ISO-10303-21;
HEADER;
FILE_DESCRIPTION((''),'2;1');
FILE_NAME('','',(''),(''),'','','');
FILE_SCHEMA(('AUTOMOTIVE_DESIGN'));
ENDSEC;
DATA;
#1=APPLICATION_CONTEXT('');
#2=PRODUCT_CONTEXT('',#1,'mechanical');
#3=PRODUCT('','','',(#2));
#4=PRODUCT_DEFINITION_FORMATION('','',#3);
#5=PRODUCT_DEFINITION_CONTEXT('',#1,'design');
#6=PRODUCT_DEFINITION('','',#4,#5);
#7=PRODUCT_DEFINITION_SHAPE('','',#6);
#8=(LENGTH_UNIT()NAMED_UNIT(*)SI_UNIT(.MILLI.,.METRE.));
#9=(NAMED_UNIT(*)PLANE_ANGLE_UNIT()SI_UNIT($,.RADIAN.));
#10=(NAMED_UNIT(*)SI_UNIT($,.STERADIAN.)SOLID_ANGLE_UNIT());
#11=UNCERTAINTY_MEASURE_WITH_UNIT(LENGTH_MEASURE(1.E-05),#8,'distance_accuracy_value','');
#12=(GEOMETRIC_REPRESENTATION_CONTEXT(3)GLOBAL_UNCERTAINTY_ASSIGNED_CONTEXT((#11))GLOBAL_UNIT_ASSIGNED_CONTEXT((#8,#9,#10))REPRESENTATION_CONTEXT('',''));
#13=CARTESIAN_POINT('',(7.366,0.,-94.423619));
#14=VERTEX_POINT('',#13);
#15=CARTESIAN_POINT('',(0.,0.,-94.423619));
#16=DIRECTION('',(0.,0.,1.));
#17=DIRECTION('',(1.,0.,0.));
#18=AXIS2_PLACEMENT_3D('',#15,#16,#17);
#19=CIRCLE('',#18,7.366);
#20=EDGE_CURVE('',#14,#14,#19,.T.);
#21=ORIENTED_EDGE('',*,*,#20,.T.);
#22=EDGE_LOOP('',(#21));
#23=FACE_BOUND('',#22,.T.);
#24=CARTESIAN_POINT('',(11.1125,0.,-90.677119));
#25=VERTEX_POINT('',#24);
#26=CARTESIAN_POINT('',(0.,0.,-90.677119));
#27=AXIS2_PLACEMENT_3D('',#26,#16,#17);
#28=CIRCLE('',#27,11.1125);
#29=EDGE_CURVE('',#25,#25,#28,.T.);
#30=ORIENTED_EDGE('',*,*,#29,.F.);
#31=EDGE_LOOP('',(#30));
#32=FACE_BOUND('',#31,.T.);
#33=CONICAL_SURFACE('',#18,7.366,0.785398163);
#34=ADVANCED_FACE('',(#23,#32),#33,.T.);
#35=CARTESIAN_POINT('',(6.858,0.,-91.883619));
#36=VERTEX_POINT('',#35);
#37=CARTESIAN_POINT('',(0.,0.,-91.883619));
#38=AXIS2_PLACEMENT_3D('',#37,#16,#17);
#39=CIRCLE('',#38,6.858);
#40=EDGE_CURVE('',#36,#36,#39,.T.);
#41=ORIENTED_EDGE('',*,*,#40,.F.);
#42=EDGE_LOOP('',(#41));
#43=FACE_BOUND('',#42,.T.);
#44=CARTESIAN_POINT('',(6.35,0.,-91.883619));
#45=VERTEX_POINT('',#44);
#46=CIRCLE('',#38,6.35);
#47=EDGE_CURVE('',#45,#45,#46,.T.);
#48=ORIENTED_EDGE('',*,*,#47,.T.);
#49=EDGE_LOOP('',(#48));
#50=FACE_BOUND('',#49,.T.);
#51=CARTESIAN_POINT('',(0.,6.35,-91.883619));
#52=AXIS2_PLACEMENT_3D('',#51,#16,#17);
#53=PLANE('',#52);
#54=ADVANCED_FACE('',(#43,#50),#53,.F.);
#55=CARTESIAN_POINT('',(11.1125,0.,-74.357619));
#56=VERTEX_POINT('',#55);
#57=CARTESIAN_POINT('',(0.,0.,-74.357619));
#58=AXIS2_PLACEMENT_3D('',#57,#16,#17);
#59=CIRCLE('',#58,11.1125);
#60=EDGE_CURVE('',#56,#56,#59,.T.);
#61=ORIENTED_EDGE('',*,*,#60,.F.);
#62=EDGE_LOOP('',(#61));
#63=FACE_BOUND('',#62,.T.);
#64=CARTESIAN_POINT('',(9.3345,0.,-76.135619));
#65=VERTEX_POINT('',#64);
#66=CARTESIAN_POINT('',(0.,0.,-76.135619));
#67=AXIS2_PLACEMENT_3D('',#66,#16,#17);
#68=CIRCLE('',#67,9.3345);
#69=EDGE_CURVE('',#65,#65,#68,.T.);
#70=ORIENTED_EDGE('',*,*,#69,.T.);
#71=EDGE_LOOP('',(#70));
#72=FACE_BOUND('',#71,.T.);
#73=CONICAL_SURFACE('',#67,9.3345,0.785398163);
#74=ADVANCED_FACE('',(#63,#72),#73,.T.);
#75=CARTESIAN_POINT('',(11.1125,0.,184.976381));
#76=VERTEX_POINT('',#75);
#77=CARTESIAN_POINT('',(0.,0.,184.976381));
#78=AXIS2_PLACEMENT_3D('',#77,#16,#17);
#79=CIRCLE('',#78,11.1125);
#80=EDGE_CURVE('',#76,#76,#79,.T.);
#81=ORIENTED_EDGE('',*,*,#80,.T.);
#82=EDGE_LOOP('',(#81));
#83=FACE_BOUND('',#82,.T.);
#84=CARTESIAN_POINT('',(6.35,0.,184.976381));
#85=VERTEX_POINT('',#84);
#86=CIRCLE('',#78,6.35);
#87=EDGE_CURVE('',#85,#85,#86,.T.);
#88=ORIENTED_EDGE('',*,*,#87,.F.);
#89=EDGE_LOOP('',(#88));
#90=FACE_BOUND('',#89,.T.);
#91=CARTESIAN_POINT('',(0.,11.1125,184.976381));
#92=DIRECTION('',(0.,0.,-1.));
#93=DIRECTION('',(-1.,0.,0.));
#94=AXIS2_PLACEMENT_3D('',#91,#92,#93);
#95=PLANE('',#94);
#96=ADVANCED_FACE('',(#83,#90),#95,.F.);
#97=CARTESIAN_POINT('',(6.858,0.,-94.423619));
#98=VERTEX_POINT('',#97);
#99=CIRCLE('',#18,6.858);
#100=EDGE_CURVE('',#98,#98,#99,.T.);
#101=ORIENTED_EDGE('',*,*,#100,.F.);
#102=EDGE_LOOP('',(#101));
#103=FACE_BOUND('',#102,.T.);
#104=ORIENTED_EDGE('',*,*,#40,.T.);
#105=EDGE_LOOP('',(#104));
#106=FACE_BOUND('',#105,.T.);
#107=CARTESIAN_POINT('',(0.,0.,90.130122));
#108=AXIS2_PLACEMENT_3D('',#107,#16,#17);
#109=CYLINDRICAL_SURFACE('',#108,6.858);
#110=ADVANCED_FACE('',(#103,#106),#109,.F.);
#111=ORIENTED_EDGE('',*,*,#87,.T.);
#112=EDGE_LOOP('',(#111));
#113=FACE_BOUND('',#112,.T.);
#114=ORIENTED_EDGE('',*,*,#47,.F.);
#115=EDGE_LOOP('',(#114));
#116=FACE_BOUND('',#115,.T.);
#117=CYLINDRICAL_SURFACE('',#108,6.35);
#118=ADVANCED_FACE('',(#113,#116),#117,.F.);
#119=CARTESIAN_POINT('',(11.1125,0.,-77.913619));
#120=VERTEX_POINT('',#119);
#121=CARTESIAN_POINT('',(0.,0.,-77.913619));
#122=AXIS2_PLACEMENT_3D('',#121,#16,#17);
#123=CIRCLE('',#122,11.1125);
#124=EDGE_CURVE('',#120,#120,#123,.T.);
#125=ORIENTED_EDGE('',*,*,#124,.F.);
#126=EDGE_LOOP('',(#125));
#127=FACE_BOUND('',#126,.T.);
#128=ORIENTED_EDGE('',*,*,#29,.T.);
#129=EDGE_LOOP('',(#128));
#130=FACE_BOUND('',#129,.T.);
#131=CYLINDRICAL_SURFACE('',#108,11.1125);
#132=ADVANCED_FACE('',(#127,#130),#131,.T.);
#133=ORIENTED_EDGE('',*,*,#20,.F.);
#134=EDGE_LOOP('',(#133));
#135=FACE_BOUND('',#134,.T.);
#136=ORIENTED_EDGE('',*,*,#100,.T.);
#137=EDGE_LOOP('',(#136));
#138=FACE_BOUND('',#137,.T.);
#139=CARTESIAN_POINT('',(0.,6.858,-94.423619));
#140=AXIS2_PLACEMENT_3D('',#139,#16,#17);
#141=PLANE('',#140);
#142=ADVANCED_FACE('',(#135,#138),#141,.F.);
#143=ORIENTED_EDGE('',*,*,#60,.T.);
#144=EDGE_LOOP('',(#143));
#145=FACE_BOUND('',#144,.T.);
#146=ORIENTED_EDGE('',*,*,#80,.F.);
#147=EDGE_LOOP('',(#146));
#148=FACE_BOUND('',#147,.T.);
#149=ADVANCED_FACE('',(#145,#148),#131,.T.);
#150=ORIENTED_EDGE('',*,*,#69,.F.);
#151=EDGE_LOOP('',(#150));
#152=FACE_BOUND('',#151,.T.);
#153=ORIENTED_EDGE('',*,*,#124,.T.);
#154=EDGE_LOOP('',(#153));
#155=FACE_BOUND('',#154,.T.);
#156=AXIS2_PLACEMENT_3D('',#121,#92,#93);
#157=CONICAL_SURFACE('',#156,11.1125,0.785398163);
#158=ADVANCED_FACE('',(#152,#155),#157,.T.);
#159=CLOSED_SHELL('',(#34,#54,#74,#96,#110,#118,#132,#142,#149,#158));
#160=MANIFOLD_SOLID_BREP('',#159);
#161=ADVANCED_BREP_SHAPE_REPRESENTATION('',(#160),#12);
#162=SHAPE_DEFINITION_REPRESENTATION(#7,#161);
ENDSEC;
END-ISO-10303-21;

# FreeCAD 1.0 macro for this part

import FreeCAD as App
import Part
import Sketcher
from FreeCAD import Vector
Q = App.Units.Quantity

doc = App.newDocument("Part")
body = doc.addObject("PartDesign::Body", "Body")

# Sketch on YZ plane
sketch1 = doc.addObject("Sketcher::SketchObject", "Sketch")
body.addObject(sketch1)
sketch1.AttachmentSupport = (doc.YZ_Plane, [""])
sketch1.MapMode = "FlatFace"
sketch1.addGeometry([
    Part.LineSegment(Vector(6.3, 185, 0), Vector(6.3, -91.9, 0)),  # 0
    Part.LineSegment(Vector(6.3, -91.9, 0), Vector(6.9, -91.9, 0)),  # 1
    Part.LineSegment(Vector(6.9, -91.9, 0), Vector(6.9, -94.4, 0)),  # 2
    Part.LineSegment(Vector(6.9, -94.4, 0), Vector(7.4, -94.4, 0)),  # 3
    Part.LineSegment(Vector(7.4, -94.4, 0), Vector(11.1, -90.7, 0)),  # 4
    Part.LineSegment(Vector(11.1, -90.7, 0), Vector(11.1, -77.9, 0)),  # 5
    Part.LineSegment(Vector(11.1, -77.9, 0), Vector(9.3, -76.1, 0)),  # 6
    Part.LineSegment(Vector(9.3, -76.1, 0), Vector(11.1, -74.4, 0)),  # 7
    Part.LineSegment(Vector(11.1, -74.4, 0), Vector(11.1, 185, 0)),  # 8
    Part.LineSegment(Vector(11.1, 185, 0), Vector(6.3, 185, 0)),  # 9
], False)
sketch1.addConstraint([
    Sketcher.Constraint("Coincident", 0, 2, 1, 1),
    Sketcher.Constraint("Coincident", 1, 2, 2, 1),
    Sketcher.Constraint("Coincident", 2, 2, 3, 1),
    Sketcher.Constraint("Coincident", 3, 2, 4, 1),
    Sketcher.Constraint("Coincident", 4, 2, 5, 1),
    Sketcher.Constraint("Coincident", 5, 2, 6, 1),
    Sketcher.Constraint("Coincident", 6, 2, 7, 1),
    Sketcher.Constraint("Coincident", 7, 2, 8, 1),
    Sketcher.Constraint("Coincident", 8, 2, 9, 1),
    Sketcher.Constraint("Coincident", 9, 2, 0, 1),
    Sketcher.Constraint("Vertical", 0),
    Sketcher.Constraint("Horizontal", 1),
    Sketcher.Constraint("Vertical", 2),
    Sketcher.Constraint("Horizontal", 3),
    Sketcher.Constraint("Vertical", 5),
    Sketcher.Constraint("Vertical", 8),
    Sketcher.Constraint("Horizontal", 9),
    Sketcher.Constraint("Perpendicular", 4, 6),
    Sketcher.Constraint("Perpendicular", 6, 7),
    Sketcher.Constraint("Vertical", 5, 2, 7, 2),
    Sketcher.Constraint("Equal", 1, 3),
    Sketcher.Constraint("Equal", 6, 7),
    Sketcher.Constraint("DistanceY", 0, 2, 0, 1, Q("10.9 in")),
    Sketcher.Constraint("DistanceY", 2, 2, 2, 1, Q("0.1 in")),
    Sketcher.Constraint("DistanceX", 1, 1, 1, 2, Q("0.02 in")),
    Sketcher.Constraint("DistanceY", 8, 1, 8, 2, Q("10.21 in")),
    Sketcher.Constraint("DistanceX", 9, 2, 9, 1, Q("0.1875 in")),
    Sketcher.Constraint("DistanceX", -1, 1, 0, 2, Q("0.25 in")),
    Sketcher.Constraint("DistanceY", 1, 2, 5, 2, Q("0.55 in")),
    Sketcher.Constraint("DistanceY", 0, 2, -1, 1, Q("91.883619 mm")),
])
revolution = doc.addObject("PartDesign::Revolution", "Revolution")
body.addObject(revolution)
revolution.Profile = sketch1
revolution.ReferenceAxis = (sketch1, ["V_Axis"])
revolution.Angle = 360

doc.recompute()
